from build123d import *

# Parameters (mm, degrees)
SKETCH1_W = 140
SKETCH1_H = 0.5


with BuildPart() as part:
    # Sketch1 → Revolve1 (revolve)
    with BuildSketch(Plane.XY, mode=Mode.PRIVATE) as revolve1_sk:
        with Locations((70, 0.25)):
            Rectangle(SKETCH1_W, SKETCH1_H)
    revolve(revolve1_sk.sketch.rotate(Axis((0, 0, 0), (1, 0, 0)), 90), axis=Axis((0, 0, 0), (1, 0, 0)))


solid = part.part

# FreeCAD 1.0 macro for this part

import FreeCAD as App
import Part
import Sketcher
from FreeCAD import Vector


def add_polygon(sketch, points):
    """Adds a closed chain of lines whose ends are joined by coincident constraints."""
    first, n = sketch.GeometryCount, len(points)
    for a, b in zip(points, points[1:] + points[:1]):
        sketch.addGeometry(Part.LineSegment(App.Vector(*a, 0), App.Vector(*b, 0)), False)
    for i in range(n):
        sketch.addConstraint(Sketcher.Constraint("Coincident", first + i, 2, first + (i + 1) % n, 1))

doc = App.newDocument("Part")
body = doc.addObject("PartDesign::Body", "Body")

# Sketch on XY plane
sketch1 = body.newObject("Sketcher::SketchObject", "Sketch")
sketch1.AttachmentSupport = (doc.getObject("XY_Plane"), [""])
sketch1.MapMode = "FlatFace"
add_polygon(sketch1, [(0, 0.5), (0, 0), (140, 0), (140, 0.5)])  # lines 0-3
sketch1.addConstraint([
    Sketcher.Constraint("Vertical", 0),
    Sketcher.Constraint("Horizontal", 1),
    Sketcher.Constraint("Vertical", 2),
    Sketcher.Constraint("Horizontal", 3),
    Sketcher.Constraint("Coincident", 0, 2, -1, 1),
    Sketcher.Constraint("DistanceX", 1, 1, 1, 2, 140.0),
    Sketcher.Constraint("DistanceY", 0, 2, 0, 1, 0.5),
])
revolution = body.newObject("PartDesign::Revolution", "Revolution")
revolution.Profile = sketch1
revolution.ReferenceAxis = (sketch1, ["H_Axis"])
revolution.Angle = 360

doc.recompute()
